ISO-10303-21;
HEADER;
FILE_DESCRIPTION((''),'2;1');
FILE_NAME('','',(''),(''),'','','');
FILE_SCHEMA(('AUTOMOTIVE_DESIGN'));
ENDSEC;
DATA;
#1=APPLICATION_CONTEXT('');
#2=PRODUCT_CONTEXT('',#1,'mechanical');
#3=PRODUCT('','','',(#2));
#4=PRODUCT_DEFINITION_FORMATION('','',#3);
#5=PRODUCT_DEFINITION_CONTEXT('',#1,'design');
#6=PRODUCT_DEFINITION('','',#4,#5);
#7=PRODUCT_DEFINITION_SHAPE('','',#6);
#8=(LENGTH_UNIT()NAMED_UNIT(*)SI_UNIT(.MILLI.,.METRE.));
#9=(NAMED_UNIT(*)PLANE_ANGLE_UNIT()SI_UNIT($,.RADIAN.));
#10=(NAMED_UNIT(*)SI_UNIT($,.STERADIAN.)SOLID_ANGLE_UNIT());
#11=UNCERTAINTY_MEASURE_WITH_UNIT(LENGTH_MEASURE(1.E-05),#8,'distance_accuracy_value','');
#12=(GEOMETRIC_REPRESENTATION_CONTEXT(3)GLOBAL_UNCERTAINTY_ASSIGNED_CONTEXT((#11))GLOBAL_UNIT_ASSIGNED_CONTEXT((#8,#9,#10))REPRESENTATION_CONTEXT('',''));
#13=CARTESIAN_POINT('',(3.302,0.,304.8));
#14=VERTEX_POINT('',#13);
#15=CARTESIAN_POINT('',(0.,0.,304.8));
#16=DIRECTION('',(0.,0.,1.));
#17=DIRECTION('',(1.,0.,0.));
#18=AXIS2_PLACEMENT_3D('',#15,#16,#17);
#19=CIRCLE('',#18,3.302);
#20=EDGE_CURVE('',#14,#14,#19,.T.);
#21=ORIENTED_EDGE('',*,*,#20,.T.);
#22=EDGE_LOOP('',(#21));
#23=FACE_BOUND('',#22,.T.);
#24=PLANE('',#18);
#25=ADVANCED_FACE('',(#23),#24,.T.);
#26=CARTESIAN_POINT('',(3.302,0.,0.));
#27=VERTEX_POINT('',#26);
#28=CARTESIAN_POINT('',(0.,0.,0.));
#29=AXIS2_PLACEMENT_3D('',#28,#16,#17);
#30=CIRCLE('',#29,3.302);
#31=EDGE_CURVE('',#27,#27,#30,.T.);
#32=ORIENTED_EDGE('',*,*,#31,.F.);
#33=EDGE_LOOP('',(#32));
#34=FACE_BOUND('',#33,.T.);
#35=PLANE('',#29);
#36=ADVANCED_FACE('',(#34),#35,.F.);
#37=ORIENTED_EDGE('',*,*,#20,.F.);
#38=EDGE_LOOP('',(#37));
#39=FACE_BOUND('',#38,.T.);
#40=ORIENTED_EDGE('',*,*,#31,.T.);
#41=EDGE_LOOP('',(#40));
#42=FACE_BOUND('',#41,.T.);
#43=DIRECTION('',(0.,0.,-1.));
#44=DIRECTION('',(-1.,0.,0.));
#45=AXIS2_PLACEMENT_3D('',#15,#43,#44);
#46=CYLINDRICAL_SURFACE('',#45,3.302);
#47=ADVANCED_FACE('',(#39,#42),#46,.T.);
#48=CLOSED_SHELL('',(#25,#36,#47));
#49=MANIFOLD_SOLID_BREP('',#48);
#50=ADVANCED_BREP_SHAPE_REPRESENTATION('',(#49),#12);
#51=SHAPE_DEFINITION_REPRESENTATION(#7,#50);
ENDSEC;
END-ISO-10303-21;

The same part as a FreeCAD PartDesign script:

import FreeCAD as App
import Part
import Sketcher
Q = App.Units.Quantity

doc = App.newDocument("Part")
params = doc.addObject("Spreadsheet::Sheet", "Params")
for row, (alias, value) in enumerate([
    ("sketch1_diameter", "0.26 in"),
    ("pad1_length", "12 in"),
], start=1):
    params.set(f"A{row}", alias)
    params.set(f"B{row}", "=" + value)
    params.setAlias(f"B{row}", alias)

body = doc.addObject("PartDesign::Body", "Body")

# Sketch on XY plane
sketch1 = body.newObject("Sketcher::SketchObject", "Sketch")
sketch1.AttachmentSupport = (doc.getObject("XY_Plane"), [""])
sketch1.MapMode = "FlatFace"
sketch1.addGeometry(Part.Circle(App.Vector(0, 0, 0), App.Vector(0, 0, 1), 3.3), False)
sketch1.addConstraint(Sketcher.Constraint("Coincident", 0, 3, -1, 1))
sketch1.addConstraint(Sketcher.Constraint("Diameter", 0, Q("0.26 in")))
sketch1.setExpression("Constraints[1]", "Params.sketch1_diameter")
pad1 = body.newObject("PartDesign::Pad", "Pad")
pad1.Profile = sketch1
pad1.setExpression("Length", "Params.pad1_length")

doc.recompute()
